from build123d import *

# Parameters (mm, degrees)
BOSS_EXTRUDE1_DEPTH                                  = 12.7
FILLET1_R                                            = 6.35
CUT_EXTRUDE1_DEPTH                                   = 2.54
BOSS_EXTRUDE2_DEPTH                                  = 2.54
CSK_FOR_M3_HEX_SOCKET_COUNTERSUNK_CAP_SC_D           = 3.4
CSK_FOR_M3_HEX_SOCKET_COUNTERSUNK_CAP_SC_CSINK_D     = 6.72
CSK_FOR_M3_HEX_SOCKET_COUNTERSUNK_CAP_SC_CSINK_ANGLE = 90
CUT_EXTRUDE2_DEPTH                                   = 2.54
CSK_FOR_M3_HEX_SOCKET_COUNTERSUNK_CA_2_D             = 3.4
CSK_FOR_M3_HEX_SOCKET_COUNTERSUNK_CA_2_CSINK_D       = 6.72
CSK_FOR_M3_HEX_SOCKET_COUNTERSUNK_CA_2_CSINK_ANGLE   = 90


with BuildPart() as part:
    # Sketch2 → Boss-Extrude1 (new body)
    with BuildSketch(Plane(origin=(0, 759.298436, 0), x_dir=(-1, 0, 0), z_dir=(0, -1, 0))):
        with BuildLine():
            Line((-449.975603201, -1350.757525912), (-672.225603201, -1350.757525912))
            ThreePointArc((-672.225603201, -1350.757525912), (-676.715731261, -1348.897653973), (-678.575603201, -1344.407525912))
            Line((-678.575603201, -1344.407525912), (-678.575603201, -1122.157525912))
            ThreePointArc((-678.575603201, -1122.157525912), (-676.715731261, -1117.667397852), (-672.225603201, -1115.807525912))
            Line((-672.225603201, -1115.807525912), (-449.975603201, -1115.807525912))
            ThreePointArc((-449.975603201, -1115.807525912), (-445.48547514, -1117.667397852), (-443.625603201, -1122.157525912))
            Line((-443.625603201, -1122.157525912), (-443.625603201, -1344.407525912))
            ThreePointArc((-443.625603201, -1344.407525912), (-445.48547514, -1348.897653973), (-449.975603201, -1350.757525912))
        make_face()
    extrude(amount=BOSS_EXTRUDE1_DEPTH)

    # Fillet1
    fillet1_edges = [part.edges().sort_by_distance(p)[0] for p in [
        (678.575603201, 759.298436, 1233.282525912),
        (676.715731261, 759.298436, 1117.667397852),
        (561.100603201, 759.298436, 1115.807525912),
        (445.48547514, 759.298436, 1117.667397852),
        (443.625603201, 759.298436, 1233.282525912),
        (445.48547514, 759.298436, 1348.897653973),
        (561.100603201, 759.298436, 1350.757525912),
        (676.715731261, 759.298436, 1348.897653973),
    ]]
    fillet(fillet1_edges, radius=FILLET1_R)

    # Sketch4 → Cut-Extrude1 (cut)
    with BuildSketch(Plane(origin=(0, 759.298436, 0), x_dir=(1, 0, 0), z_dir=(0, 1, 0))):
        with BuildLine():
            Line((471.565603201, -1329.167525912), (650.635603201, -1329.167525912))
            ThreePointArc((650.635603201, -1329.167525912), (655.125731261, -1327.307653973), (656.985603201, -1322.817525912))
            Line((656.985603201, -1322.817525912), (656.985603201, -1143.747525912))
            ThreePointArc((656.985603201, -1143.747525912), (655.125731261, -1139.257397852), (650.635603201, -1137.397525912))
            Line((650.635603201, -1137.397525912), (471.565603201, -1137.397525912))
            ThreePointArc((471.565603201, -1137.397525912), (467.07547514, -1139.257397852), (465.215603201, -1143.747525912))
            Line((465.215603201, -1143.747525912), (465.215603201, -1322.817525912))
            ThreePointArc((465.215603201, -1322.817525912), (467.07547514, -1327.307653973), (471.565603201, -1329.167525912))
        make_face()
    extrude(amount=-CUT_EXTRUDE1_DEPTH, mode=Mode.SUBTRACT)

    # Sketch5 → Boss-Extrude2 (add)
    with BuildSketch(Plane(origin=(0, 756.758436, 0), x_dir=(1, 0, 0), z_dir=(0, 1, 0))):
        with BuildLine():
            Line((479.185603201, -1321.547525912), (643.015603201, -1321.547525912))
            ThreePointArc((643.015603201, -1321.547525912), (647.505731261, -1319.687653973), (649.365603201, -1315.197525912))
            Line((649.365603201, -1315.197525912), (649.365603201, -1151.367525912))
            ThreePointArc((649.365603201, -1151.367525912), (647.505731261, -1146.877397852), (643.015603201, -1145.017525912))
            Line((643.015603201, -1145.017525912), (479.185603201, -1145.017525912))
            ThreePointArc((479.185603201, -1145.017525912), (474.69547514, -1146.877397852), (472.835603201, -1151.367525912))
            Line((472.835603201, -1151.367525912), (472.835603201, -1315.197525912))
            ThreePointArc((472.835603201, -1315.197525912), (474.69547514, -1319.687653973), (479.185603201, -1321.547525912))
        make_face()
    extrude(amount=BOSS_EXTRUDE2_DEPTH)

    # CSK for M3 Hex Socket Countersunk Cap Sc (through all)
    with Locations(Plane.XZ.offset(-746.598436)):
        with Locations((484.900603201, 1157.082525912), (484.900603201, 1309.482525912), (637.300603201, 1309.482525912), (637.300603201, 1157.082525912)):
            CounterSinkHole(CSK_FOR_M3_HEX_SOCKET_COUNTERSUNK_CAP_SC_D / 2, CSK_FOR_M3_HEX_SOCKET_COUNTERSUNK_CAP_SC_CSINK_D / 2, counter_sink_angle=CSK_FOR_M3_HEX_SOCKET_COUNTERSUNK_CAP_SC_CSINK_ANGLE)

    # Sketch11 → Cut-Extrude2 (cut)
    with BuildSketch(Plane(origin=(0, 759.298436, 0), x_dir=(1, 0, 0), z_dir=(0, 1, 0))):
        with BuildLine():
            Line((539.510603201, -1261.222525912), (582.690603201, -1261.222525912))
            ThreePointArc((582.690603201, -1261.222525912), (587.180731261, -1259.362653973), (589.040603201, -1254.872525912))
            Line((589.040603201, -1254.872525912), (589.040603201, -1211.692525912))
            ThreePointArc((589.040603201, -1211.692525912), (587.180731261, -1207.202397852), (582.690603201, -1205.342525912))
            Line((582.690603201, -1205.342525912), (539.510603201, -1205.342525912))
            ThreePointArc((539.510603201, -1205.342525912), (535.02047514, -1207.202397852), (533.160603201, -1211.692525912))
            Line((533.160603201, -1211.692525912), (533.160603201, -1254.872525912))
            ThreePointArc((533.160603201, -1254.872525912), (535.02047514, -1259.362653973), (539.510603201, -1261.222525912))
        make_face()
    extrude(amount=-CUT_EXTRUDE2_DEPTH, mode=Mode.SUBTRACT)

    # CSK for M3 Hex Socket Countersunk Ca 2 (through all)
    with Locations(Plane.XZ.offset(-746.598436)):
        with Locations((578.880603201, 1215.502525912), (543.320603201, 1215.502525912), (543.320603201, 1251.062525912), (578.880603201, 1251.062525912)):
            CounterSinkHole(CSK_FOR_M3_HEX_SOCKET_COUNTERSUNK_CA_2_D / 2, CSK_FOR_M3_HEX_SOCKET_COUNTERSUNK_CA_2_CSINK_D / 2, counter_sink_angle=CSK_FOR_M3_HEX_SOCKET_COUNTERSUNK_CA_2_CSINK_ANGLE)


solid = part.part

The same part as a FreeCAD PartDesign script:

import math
import FreeCAD as App
import Part
import Sketcher

V = App.Vector
Q = App.Units.Quantity


def edges_at(feature, points):
    """Names of the edges that pass closest to the given points."""
    edges = feature.Shape.Edges
    near = lambda p: min(range(len(edges)), key=lambda i: edges[i].distToShape(Part.Vertex(*p))[0])
    return sorted({f"Edge{near(p) + 1}" for p in points})

doc = App.newDocument("Part")
params = doc.addObject("Spreadsheet::Sheet", "Params")
for row, (alias, value) in enumerate([
    ("sketch1_radius", "0.25 in"),
    ("pad1_length", "0.5 in"),
    ("fillet_radius", "0.25 in"),
    ("sketch2_radius", "0.25 in"),
    ("sketch2_width", "7.05 in"),
    ("pocket1_length", "0.1 in"),
    ("sketch3_radius", "0.25 in"),
    ("sketch3_width", "6.45 in"),
    ("pad2_length", "0.1 in"),
    ("hole_diameter", "3.4 mm"),
    ("hole_csink_diameter", "6.72 mm"),
    ("sketch5_radius", "0.25 in"),
    ("sketch5_width", "1.7 in"),
    ("pocket2_length", "0.1 in"),
    ("hole2_diameter", "3.4 mm"),
    ("hole2_csink_diameter", "6.72 mm"),
], start=1):
    params.set(f"A{row}", alias)
    params.set(f"B{row}", "=" + value)
    params.setAlias(f"B{row}", alias)

body = doc.addObject("PartDesign::Body", "Body")

# Sketch on XZ plane
sketch1 = doc.addObject("Sketcher::SketchObject", "Sketch")
body.addObject(sketch1)
sketch1.AttachmentSupport = (doc.XZ_Plane, [""])
sketch1.MapMode = "FlatFace"
sketch1.AttachmentOffset = App.Placement(V(0, 0, -759.298436), App.Rotation())
sketch1.addGeometry(Part.LineSegment(V(672.225603, 1350.757526, 0), V(449.975603, 1350.757526, 0)), False)
sketch1.addGeometry(Part.ArcOfCircle(Part.Circle(V(449.975603, 1344.407526, 0), V(0, 0, 1), 6.35), math.radians(90), math.radians(180)), False)
sketch1.addGeometry(Part.LineSegment(V(443.625603, 1344.407526, 0), V(443.625603, 1122.157526, 0)), False)
sketch1.addGeometry(Part.ArcOfCircle(Part.Circle(V(449.975603, 1122.157526, 0), V(0, 0, 1), 6.35), math.radians(180), math.radians(270)), False)
sketch1.addGeometry(Part.LineSegment(V(449.975603, 1115.807526, 0), V(672.225603, 1115.807526, 0)), False)
sketch1.addGeometry(Part.ArcOfCircle(Part.Circle(V(672.225603, 1122.157526, 0), V(0, 0, 1), 6.35), math.radians(-90), math.radians(0)), False)
sketch1.addGeometry(Part.LineSegment(V(678.575603, 1122.157526, 0), V(678.575603, 1344.407526, 0)), False)
sketch1.addGeometry(Part.ArcOfCircle(Part.Circle(V(672.225603, 1344.407526, 0), V(0, 0, 1), 6.35), math.radians(0), math.radians(90)), False)
sketch1.addConstraint(Sketcher.Constraint("Tangent", 0, 2, 1, 1))
sketch1.addConstraint(Sketcher.Constraint("Tangent", 1, 2, 2, 1))
sketch1.addConstraint(Sketcher.Constraint("Tangent", 2, 2, 3, 1))
sketch1.addConstraint(Sketcher.Constraint("Tangent", 3, 2, 4, 1))
sketch1.addConstraint(Sketcher.Constraint("Tangent", 4, 2, 5, 1))
sketch1.addConstraint(Sketcher.Constraint("Tangent", 5, 2, 6, 1))
sketch1.addConstraint(Sketcher.Constraint("Tangent", 6, 2, 7, 1))
sketch1.addConstraint(Sketcher.Constraint("Tangent", 7, 2, 0, 1))
sketch1.addConstraint(Sketcher.Constraint("Horizontal", 0))
sketch1.addConstraint(Sketcher.Constraint("Vertical", 2))
sketch1.addConstraint(Sketcher.Constraint("Horizontal", 4))
sketch1.addConstraint(Sketcher.Constraint("Vertical", 6))
sketch1.addConstraint(Sketcher.Constraint("Equal", 1, 3))
sketch1.addConstraint(Sketcher.Constraint("Equal", 3, 5))
sketch1.addConstraint(Sketcher.Constraint("Equal", 5, 7))
sketch1.addConstraint(Sketcher.Constraint("Equal", 4, 2))
sketch1.addConstraint(Sketcher.Constraint("Radius", 1, Q("0.25 in")))
sketch1.addConstraint(Sketcher.Constraint("DistanceY", 3, 3, 0, 2, Q("9 in")))
sketch1.addConstraint(Sketcher.Constraint("DistanceX", -1, 1, 1, 3, 449.975603))
sketch1.addConstraint(Sketcher.Constraint("DistanceY", -1, 1, 1, 3, 1344.407526))
sketch1.setExpression("Constraints[16]", "Params.sketch1_radius")
pad1 = doc.addObject("PartDesign::Pad", "Pad")
body.addObject(pad1)
pad1.Profile = sketch1
pad1.setExpression("Length", "Params.pad1_length")
doc.recompute()

fillet = doc.addObject("PartDesign::Fillet", "Fillet")
body.addObject(fillet)
fillet.Base = (pad1, edges_at(pad1, [
    (678.576, 759.298, 1233.283),
    (676.716, 759.298, 1117.667),
    (561.101, 759.298, 1115.808),
    (445.485, 759.298, 1117.667),
    (443.626, 759.298, 1233.283),
    (445.485, 759.298, 1348.898),
    (561.101, 759.298, 1350.758),
    (676.716, 759.298, 1348.898),
]))
fillet.setExpression("Radius", "Params.fillet_radius")

# Sketch on XZ plane
sketch2 = doc.addObject("Sketcher::SketchObject", "Sketch001")
body.addObject(sketch2)
sketch2.AttachmentSupport = (doc.XZ_Plane, [""])
sketch2.MapMode = "FlatFace"
sketch2.AttachmentOffset = App.Placement(V(0, 0, -759.298436), App.Rotation())
sketch2.addGeometry(Part.LineSegment(V(471.565603, 1329.167526, 0), V(650.635603, 1329.167526, 0)), False)
sketch2.addGeometry(Part.ArcOfCircle(Part.Circle(V(650.635603, 1322.817526, 0), V(0, 0, 1), 6.35), math.radians(0), math.radians(90)), False)
sketch2.addGeometry(Part.LineSegment(V(656.985603, 1322.817526, 0), V(656.985603, 1143.747526, 0)), False)
sketch2.addGeometry(Part.ArcOfCircle(Part.Circle(V(650.635603, 1143.747526, 0), V(0, 0, 1), 6.35), math.radians(-90), math.radians(0)), False)
sketch2.addGeometry(Part.LineSegment(V(650.635603, 1137.397526, 0), V(471.565603, 1137.397526, 0)), False)
sketch2.addGeometry(Part.ArcOfCircle(Part.Circle(V(471.565603, 1143.747526, 0), V(0, 0, 1), 6.35), math.radians(180), math.radians(270)), False)
sketch2.addGeometry(Part.LineSegment(V(465.215603, 1143.747526, 0), V(465.215603, 1322.817526, 0)), False)
sketch2.addGeometry(Part.ArcOfCircle(Part.Circle(V(471.565603, 1322.817526, 0), V(0, 0, 1), 6.35), math.radians(90), math.radians(180)), False)
sketch2.addConstraint(Sketcher.Constraint("Tangent", 0, 2, 1, 2))
sketch2.addConstraint(Sketcher.Constraint("Tangent", 1, 1, 2, 1))
sketch2.addConstraint(Sketcher.Constraint("Tangent", 2, 2, 3, 2))
sketch2.addConstraint(Sketcher.Constraint("Tangent", 3, 1, 4, 1))
sketch2.addConstraint(Sketcher.Constraint("Tangent", 4, 2, 5, 2))
sketch2.addConstraint(Sketcher.Constraint("Tangent", 5, 1, 6, 1))
sketch2.addConstraint(Sketcher.Constraint("Tangent", 6, 2, 7, 2))
sketch2.addConstraint(Sketcher.Constraint("Tangent", 7, 1, 0, 1))
sketch2.addConstraint(Sketcher.Constraint("Horizontal", 0))
sketch2.addConstraint(Sketcher.Constraint("Vertical", 2))
sketch2.addConstraint(Sketcher.Constraint("Horizontal", 4))
sketch2.addConstraint(Sketcher.Constraint("Vertical", 6))
sketch2.addConstraint(Sketcher.Constraint("Equal", 1, 3))
sketch2.addConstraint(Sketcher.Constraint("Equal", 3, 5))
sketch2.addConstraint(Sketcher.Constraint("Equal", 5, 7))
sketch2.addConstraint(Sketcher.Constraint("Equal", 4, 2))
sketch2.addConstraint(Sketcher.Constraint("Radius", 1, Q("0.25 in")))
sketch2.addConstraint(Sketcher.Constraint("DistanceX", 0, 1, 0, 2, Q("7.05 in")))
sketch2.addConstraint(Sketcher.Constraint("DistanceX", -1, 1, 1, 3, 650.635603))
sketch2.addConstraint(Sketcher.Constraint("DistanceY", -1, 1, 1, 3, 1322.817526))
sketch2.setExpression("Constraints[16]", "Params.sketch2_radius")
sketch2.setExpression("Constraints[17]", "Params.sketch2_width")
pocket1 = doc.addObject("PartDesign::Pocket", "Pocket")
body.addObject(pocket1)
pocket1.Profile = sketch2
pocket1.setExpression("Length", "Params.pocket1_length")
pocket1.Reversed = True

# Sketch on XZ plane
sketch3 = doc.addObject("Sketcher::SketchObject", "Sketch002")
body.addObject(sketch3)
sketch3.AttachmentSupport = (doc.XZ_Plane, [""])
sketch3.MapMode = "FlatFace"
sketch3.AttachmentOffset = App.Placement(V(0, 0, -756.758436), App.Rotation())
sketch3.addGeometry(Part.LineSegment(V(479.185603, 1321.547526, 0), V(643.015603, 1321.547526, 0)), False)
sketch3.addGeometry(Part.ArcOfCircle(Part.Circle(V(643.015603, 1315.197526, 0), V(0, 0, 1), 6.35), math.radians(0), math.radians(90)), False)
sketch3.addGeometry(Part.LineSegment(V(649.365603, 1315.197526, 0), V(649.365603, 1151.367526, 0)), False)
sketch3.addGeometry(Part.ArcOfCircle(Part.Circle(V(643.015603, 1151.367526, 0), V(0, 0, 1), 6.35), math.radians(-90), math.radians(0)), False)
sketch3.addGeometry(Part.LineSegment(V(643.015603, 1145.017526, 0), V(479.185603, 1145.017526, 0)), False)
sketch3.addGeometry(Part.ArcOfCircle(Part.Circle(V(479.185603, 1151.367526, 0), V(0, 0, 1), 6.35), math.radians(180), math.radians(270)), False)
sketch3.addGeometry(Part.LineSegment(V(472.835603, 1151.367526, 0), V(472.835603, 1315.197526, 0)), False)
sketch3.addGeometry(Part.ArcOfCircle(Part.Circle(V(479.185603, 1315.197526, 0), V(0, 0, 1), 6.35), math.radians(90), math.radians(180)), False)
sketch3.addConstraint(Sketcher.Constraint("Tangent", 0, 2, 1, 2))
sketch3.addConstraint(Sketcher.Constraint("Tangent", 1, 1, 2, 1))
sketch3.addConstraint(Sketcher.Constraint("Tangent", 2, 2, 3, 2))
sketch3.addConstraint(Sketcher.Constraint("Tangent", 3, 1, 4, 1))
sketch3.addConstraint(Sketcher.Constraint("Tangent", 4, 2, 5, 2))
sketch3.addConstraint(Sketcher.Constraint("Tangent", 5, 1, 6, 1))
sketch3.addConstraint(Sketcher.Constraint("Tangent", 6, 2, 7, 2))
sketch3.addConstraint(Sketcher.Constraint("Tangent", 7, 1, 0, 1))
sketch3.addConstraint(Sketcher.Constraint("Horizontal", 0))
sketch3.addConstraint(Sketcher.Constraint("Vertical", 2))
sketch3.addConstraint(Sketcher.Constraint("Horizontal", 4))
sketch3.addConstraint(Sketcher.Constraint("Vertical", 6))
sketch3.addConstraint(Sketcher.Constraint("Equal", 1, 3))
sketch3.addConstraint(Sketcher.Constraint("Equal", 3, 5))
sketch3.addConstraint(Sketcher.Constraint("Equal", 5, 7))
sketch3.addConstraint(Sketcher.Constraint("Equal", 4, 2))
sketch3.addConstraint(Sketcher.Constraint("Radius", 1, Q("0.25 in")))
sketch3.addConstraint(Sketcher.Constraint("DistanceX", 0, 1, 0, 2, Q("6.45 in")))
sketch3.addConstraint(Sketcher.Constraint("DistanceX", -1, 1, 1, 3, 643.015603))
sketch3.addConstraint(Sketcher.Constraint("DistanceY", -1, 1, 1, 3, 1315.197526))
sketch3.setExpression("Constraints[16]", "Params.sketch3_radius")
sketch3.setExpression("Constraints[17]", "Params.sketch3_width")
pad2 = doc.addObject("PartDesign::Pad", "Pad001")
body.addObject(pad2)
pad2.Profile = sketch3
pad2.setExpression("Length", "Params.pad2_length")
pad2.Reversed = True

# Sketch on XZ plane
sketch4 = doc.addObject("Sketcher::SketchObject", "Sketch003")
body.addObject(sketch4)
sketch4.AttachmentSupport = (doc.XZ_Plane, [""])
sketch4.MapMode = "FlatFace"
sketch4.AttachmentOffset = App.Placement(V(0, 0, -746.598436), App.Rotation())
sketch4.addGeometry(Part.Circle(V(484.900603, 1157.082526, 0), V(0, 0, 1), 1.7), False)
sketch4.addGeometry(Part.Circle(V(484.900603, 1309.482526, 0), V(0, 0, 1), 1.7), False)
sketch4.addGeometry(Part.Circle(V(637.300603, 1309.482526, 0), V(0, 0, 1), 1.7), False)
sketch4.addGeometry(Part.Circle(V(637.300603, 1157.082526, 0), V(0, 0, 1), 1.7), False)
sketch4.addConstraint(Sketcher.Constraint("Equal", 0, 1))
sketch4.addConstraint(Sketcher.Constraint("Equal", 1, 2))
sketch4.addConstraint(Sketcher.Constraint("Equal", 2, 3))
sketch4.addConstraint(Sketcher.Constraint("Horizontal", 1, 3, 2, 3))
sketch4.addConstraint(Sketcher.Constraint("Horizontal", 0, 3, 3, 3))
sketch4.addConstraint(Sketcher.Constraint("Vertical", 0, 3, 1, 3))
sketch4.addConstraint(Sketcher.Constraint("Vertical", 2, 3, 3, 3))
sketch4.addConstraint(Sketcher.Constraint("DistanceY", 0, 3, 1, 3, Q("6 in")))
sketch4.addConstraint(Sketcher.Constraint("DistanceX", 1, 3, 2, 3, Q("6 in")))
sketch4.addConstraint(Sketcher.Constraint("Diameter", 0, 3.4))
sketch4.addConstraint(Sketcher.Constraint("DistanceX", -1, 1, 0, 3, 484.900603))
sketch4.addConstraint(Sketcher.Constraint("DistanceY", -1, 1, 0, 3, 1157.082526))
doc.recompute()
hole = doc.addObject("PartDesign::Hole", "Hole")
body.addObject(hole)
hole.Profile = sketch4
hole.ThreadType = "None"
hole.setExpression("Diameter", "Params.hole_diameter")
hole.DepthType = "ThroughAll"
hole.HoleCutType = "Countersink"
hole.setExpression("HoleCutDiameter", "Params.hole_csink_diameter")
hole.HoleCutCountersinkAngle = 90

# Sketch on XZ plane
sketch5 = doc.addObject("Sketcher::SketchObject", "Sketch004")
body.addObject(sketch5)
sketch5.AttachmentSupport = (doc.XZ_Plane, [""])
sketch5.MapMode = "FlatFace"
sketch5.AttachmentOffset = App.Placement(V(0, 0, -759.298436), App.Rotation())
sketch5.addGeometry(Part.LineSegment(V(539.510603, 1261.222526, 0), V(582.690603, 1261.222526, 0)), False)
sketch5.addGeometry(Part.ArcOfCircle(Part.Circle(V(582.690603, 1254.872526, 0), V(0, 0, 1), 6.35), math.radians(0), math.radians(90)), False)
sketch5.addGeometry(Part.LineSegment(V(589.040603, 1254.872526, 0), V(589.040603, 1211.692526, 0)), False)
sketch5.addGeometry(Part.ArcOfCircle(Part.Circle(V(582.690603, 1211.692526, 0), V(0, 0, 1), 6.35), math.radians(-90), math.radians(0)), False)
sketch5.addGeometry(Part.LineSegment(V(582.690603, 1205.342526, 0), V(539.510603, 1205.342526, 0)), False)
sketch5.addGeometry(Part.ArcOfCircle(Part.Circle(V(539.510603, 1211.692526, 0), V(0, 0, 1), 6.35), math.radians(180), math.radians(270)), False)
sketch5.addGeometry(Part.LineSegment(V(533.160603, 1211.692526, 0), V(533.160603, 1254.872526, 0)), False)
sketch5.addGeometry(Part.ArcOfCircle(Part.Circle(V(539.510603, 1254.872526, 0), V(0, 0, 1), 6.35), math.radians(90), math.radians(180)), False)
sketch5.addConstraint(Sketcher.Constraint("Tangent", 0, 2, 1, 2))
sketch5.addConstraint(Sketcher.Constraint("Tangent", 1, 1, 2, 1))
sketch5.addConstraint(Sketcher.Constraint("Tangent", 2, 2, 3, 2))
sketch5.addConstraint(Sketcher.Constraint("Tangent", 3, 1, 4, 1))
sketch5.addConstraint(Sketcher.Constraint("Tangent", 4, 2, 5, 2))
sketch5.addConstraint(Sketcher.Constraint("Tangent", 5, 1, 6, 1))
sketch5.addConstraint(Sketcher.Constraint("Tangent", 6, 2, 7, 2))
sketch5.addConstraint(Sketcher.Constraint("Tangent", 7, 1, 0, 1))
sketch5.addConstraint(Sketcher.Constraint("Horizontal", 0))
sketch5.addConstraint(Sketcher.Constraint("Vertical", 2))
sketch5.addConstraint(Sketcher.Constraint("Horizontal", 4))
sketch5.addConstraint(Sketcher.Constraint("Vertical", 6))
sketch5.addConstraint(Sketcher.Constraint("Equal", 1, 3))
sketch5.addConstraint(Sketcher.Constraint("Equal", 3, 5))
sketch5.addConstraint(Sketcher.Constraint("Equal", 5, 7))
sketch5.addConstraint(Sketcher.Constraint("Equal", 4, 2))
sketch5.addConstraint(Sketcher.Constraint("Radius", 1, Q("0.25 in")))
sketch5.addConstraint(Sketcher.Constraint("DistanceX", 0, 1, 0, 2, Q("1.7 in")))
sketch5.addConstraint(Sketcher.Constraint("DistanceX", -1, 1, 1, 3, 582.690603))
sketch5.addConstraint(Sketcher.Constraint("DistanceY", -1, 1, 1, 3, 1254.872526))
sketch5.setExpression("Constraints[16]", "Params.sketch5_radius")
sketch5.setExpression("Constraints[17]", "Params.sketch5_width")
pocket2 = doc.addObject("PartDesign::Pocket", "Pocket001")
body.addObject(pocket2)
pocket2.Profile = sketch5
pocket2.setExpression("Length", "Params.pocket2_length")
pocket2.Reversed = True

# Sketch on XZ plane
sketch6 = doc.addObject("Sketcher::SketchObject", "Sketch005")
body.addObject(sketch6)
sketch6.AttachmentSupport = (doc.XZ_Plane, [""])
sketch6.MapMode = "FlatFace"
sketch6.AttachmentOffset = App.Placement(V(0, 0, -746.598436), App.Rotation())
sketch6.addGeometry(Part.Circle(V(578.880603, 1215.502526, 0), V(0, 0, 1), 1.7), False)
sketch6.addGeometry(Part.Circle(V(543.320603, 1215.502526, 0), V(0, 0, 1), 1.7), False)
sketch6.addGeometry(Part.Circle(V(543.320603, 1251.062526, 0), V(0, 0, 1), 1.7), False)
sketch6.addGeometry(Part.Circle(V(578.880603, 1251.062526, 0), V(0, 0, 1), 1.7), False)
sketch6.addConstraint(Sketcher.Constraint("Equal", 0, 1))
sketch6.addConstraint(Sketcher.Constraint("Equal", 1, 2))
sketch6.addConstraint(Sketcher.Constraint("Equal", 2, 3))
sketch6.addConstraint(Sketcher.Constraint("Horizontal", 0, 3, 1, 3))
sketch6.addConstraint(Sketcher.Constraint("Horizontal", 2, 3, 3, 3))
sketch6.addConstraint(Sketcher.Constraint("Vertical", 1, 3, 2, 3))
sketch6.addConstraint(Sketcher.Constraint("Vertical", 0, 3, 3, 3))
sketch6.addConstraint(Sketcher.Constraint("DistanceX", 1, 3, 0, 3, Q("1.4 in")))
sketch6.addConstraint(Sketcher.Constraint("DistanceY", 1, 3, 2, 3, Q("1.4 in")))
sketch6.addConstraint(Sketcher.Constraint("Diameter", 0, 3.4))
sketch6.addConstraint(Sketcher.Constraint("DistanceX", -1, 1, 0, 3, 578.880603))
sketch6.addConstraint(Sketcher.Constraint("DistanceY", -1, 1, 0, 3, 1215.502526))
doc.recompute()
hole2 = doc.addObject("PartDesign::Hole", "Hole001")
body.addObject(hole2)
hole2.Profile = sketch6
hole2.ThreadType = "None"
hole2.setExpression("Diameter", "Params.hole2_diameter")
hole2.DepthType = "ThroughAll"
hole2.HoleCutType = "Countersink"
hole2.setExpression("HoleCutDiameter", "Params.hole2_csink_diameter")
hole2.HoleCutCountersinkAngle = 90

doc.recompute()
